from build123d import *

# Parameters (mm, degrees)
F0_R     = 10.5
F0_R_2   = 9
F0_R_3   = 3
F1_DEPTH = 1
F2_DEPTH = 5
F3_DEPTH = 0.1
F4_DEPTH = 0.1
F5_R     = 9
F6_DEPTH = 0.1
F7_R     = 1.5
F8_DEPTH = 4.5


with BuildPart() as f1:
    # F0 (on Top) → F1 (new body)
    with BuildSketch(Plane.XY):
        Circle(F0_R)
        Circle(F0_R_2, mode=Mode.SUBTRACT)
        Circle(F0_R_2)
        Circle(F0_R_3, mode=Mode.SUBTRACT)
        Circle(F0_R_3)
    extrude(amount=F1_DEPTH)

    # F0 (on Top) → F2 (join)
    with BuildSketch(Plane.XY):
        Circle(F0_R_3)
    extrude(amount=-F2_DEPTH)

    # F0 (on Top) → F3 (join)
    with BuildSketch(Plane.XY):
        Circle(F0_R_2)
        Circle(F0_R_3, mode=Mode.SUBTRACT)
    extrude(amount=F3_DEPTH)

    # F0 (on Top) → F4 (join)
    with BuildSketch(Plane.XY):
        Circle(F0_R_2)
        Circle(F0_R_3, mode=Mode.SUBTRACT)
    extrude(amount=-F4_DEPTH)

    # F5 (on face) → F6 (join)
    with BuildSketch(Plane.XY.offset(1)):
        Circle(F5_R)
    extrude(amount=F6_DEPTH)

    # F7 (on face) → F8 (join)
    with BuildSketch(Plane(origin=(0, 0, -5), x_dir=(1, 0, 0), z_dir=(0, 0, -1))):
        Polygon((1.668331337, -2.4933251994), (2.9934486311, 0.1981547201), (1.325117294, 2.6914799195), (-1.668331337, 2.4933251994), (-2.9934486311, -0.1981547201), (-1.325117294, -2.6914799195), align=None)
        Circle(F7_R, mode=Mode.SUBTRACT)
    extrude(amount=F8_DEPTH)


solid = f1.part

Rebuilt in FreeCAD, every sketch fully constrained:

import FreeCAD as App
import Part
import Sketcher

V = App.Vector

doc = App.newDocument("Part")
params = doc.addObject("Spreadsheet::Sheet", "Params")
for row, (alias, value) in enumerate([
    ("sketch1_diameter", "21 mm"),
    ("pad1_length", "1 mm"),
    ("sketch2_diameter", "6 mm"),
    ("pad2_length", "5 mm"),
    ("sketch3_diameter", "18 mm"),
    ("sketch3_diameter2", "6 mm"),
    ("pad3_length", "0.1 mm"),
    ("sketch4_diameter", "18 mm"),
    ("sketch4_diameter2", "6 mm"),
    ("pad4_length", "0.1 mm"),
    ("sketch5_diameter", "18 mm"),
    ("pad5_length", "0.1 mm"),
    ("sketch6_diameter", "3 mm"),
    ("sketch6_length", "3 mm"),
    ("pad6_length", "4.5 mm"),
], start=1):
    params.set(f"A{row}", alias)
    params.set(f"B{row}", "=" + value)
    params.setAlias(f"B{row}", alias)

body = doc.addObject("PartDesign::Body", "Body")

# Sketch on XY plane
sketch1 = body.newObject("Sketcher::SketchObject", "Sketch")
sketch1.AttachmentSupport = (doc.getObject("XY_Plane"), [""])
sketch1.MapMode = "FlatFace"
sketch1.addGeometry(Part.Circle(V(0, 0, 0), V(0, 0, 1), 10), False)
sketch1.addConstraint([
    Sketcher.Constraint("Coincident", 0, 3, -1, 1),
    Sketcher.Constraint("Diameter", 0, 21.0),
])
sketch1.setExpression("Constraints[1]", "Params.sketch1_diameter")
pad1 = body.newObject("PartDesign::Pad", "Pad")
pad1.Profile = sketch1
pad1.setExpression("Length", "Params.pad1_length")

# Sketch on XY plane
sketch2 = body.newObject("Sketcher::SketchObject", "Sketch001")
sketch2.AttachmentSupport = (doc.getObject("XY_Plane"), [""])
sketch2.MapMode = "FlatFace"
sketch2.addGeometry(Part.Circle(V(0, 0, 0), V(0, 0, 1), 3), False)
sketch2.addConstraint([
    Sketcher.Constraint("Coincident", 0, 3, -1, 1),
    Sketcher.Constraint("Diameter", 0, 6.0),
])
sketch2.setExpression("Constraints[1]", "Params.sketch2_diameter")
pad2 = body.newObject("PartDesign::Pad", "Pad001")
pad2.Profile = sketch2
pad2.setExpression("Length", "Params.pad2_length")
pad2.Reversed = True

# Sketch on XY plane
sketch3 = body.newObject("Sketcher::SketchObject", "Sketch002")
sketch3.AttachmentSupport = (doc.getObject("XY_Plane"), [""])
sketch3.MapMode = "FlatFace"
sketch3.addGeometry([
    Part.Circle(V(0, 0, 0), V(0, 0, 1), 9),
    Part.Circle(V(0, 0, 0), V(0, 0, 1), 3),
], False)
sketch3.addConstraint([
    Sketcher.Constraint("Coincident", 0, 3, -1, 1),
    Sketcher.Constraint("Coincident", 1, 3, -1, 1),
    Sketcher.Constraint("Diameter", 0, 18.0),
    Sketcher.Constraint("Diameter", 1, 6.0),
])
sketch3.setExpression("Constraints[2]", "Params.sketch3_diameter")
sketch3.setExpression("Constraints[3]", "Params.sketch3_diameter2")
pad3 = body.newObject("PartDesign::Pad", "Pad002")
pad3.Profile = sketch3
pad3.setExpression("Length", "Params.pad3_length")

# Sketch on XY plane
sketch4 = body.newObject("Sketcher::SketchObject", "Sketch003")
sketch4.AttachmentSupport = (doc.getObject("XY_Plane"), [""])
sketch4.MapMode = "FlatFace"
sketch4.addGeometry([
    Part.Circle(V(0, 0, 0), V(0, 0, 1), 9),
    Part.Circle(V(0, 0, 0), V(0, 0, 1), 3),
], False)
sketch4.addConstraint([
    Sketcher.Constraint("Coincident", 0, 3, -1, 1),
    Sketcher.Constraint("Coincident", 1, 3, -1, 1),
    Sketcher.Constraint("Diameter", 0, 18.0),
    Sketcher.Constraint("Diameter", 1, 6.0),
])
sketch4.setExpression("Constraints[2]", "Params.sketch4_diameter")
sketch4.setExpression("Constraints[3]", "Params.sketch4_diameter2")
pad4 = body.newObject("PartDesign::Pad", "Pad003")
pad4.Profile = sketch4
pad4.setExpression("Length", "Params.pad4_length")
pad4.Reversed = True

# Sketch on XY plane
sketch5 = body.newObject("Sketcher::SketchObject", "Sketch004")
sketch5.AttachmentSupport = (doc.getObject("XY_Plane"), [""])
sketch5.MapMode = "FlatFace"
sketch5.AttachmentOffset = App.Placement(V(0, 0, 1), App.Rotation())
sketch5.addGeometry(Part.Circle(V(0, 0, 0), V(0, 0, 1), 9), False)
sketch5.addConstraint([
    Sketcher.Constraint("Coincident", 0, 3, -1, 1),
    Sketcher.Constraint("Diameter", 0, 18.0),
])
sketch5.setExpression("Constraints[1]", "Params.sketch5_diameter")
pad5 = body.newObject("PartDesign::Pad", "Pad004")
pad5.Profile = sketch5
pad5.setExpression("Length", "Params.pad5_length")

# Sketch on XY plane
sketch6 = body.newObject("Sketcher::SketchObject", "Sketch005")
sketch6.AttachmentSupport = (doc.getObject("XY_Plane"), [""])
sketch6.MapMode = "FlatFace"
sketch6.AttachmentOffset = App.Placement(V(0, 0, -5), App.Rotation())
sketch6.addGeometry([
    Part.LineSegment(V(1.7, 2.5, 0), V(3, -0.2, 0)),  # 0
    Part.LineSegment(V(3, -0.2, 0), V(1.3, -2.7, 0)),  # 1
    Part.LineSegment(V(1.3, -2.7, 0), V(-1.7, -2.5, 0)),  # 2
    Part.LineSegment(V(-1.7, -2.5, 0), V(-3, 0.2, 0)),  # 3
    Part.LineSegment(V(-3, 0.2, 0), V(-1.3, 2.7, 0)),  # 4
    Part.LineSegment(V(-1.3, 2.7, 0), V(1.7, 2.5, 0)),  # 5
    Part.Circle(V(0, 0, 0), V(0, 0, 1), 1.5),  # 6
], False)
sketch6.addConstraint([
    Sketcher.Constraint("Coincident", 0, 2, 1, 1),
    Sketcher.Constraint("Coincident", 1, 2, 2, 1),
    Sketcher.Constraint("Coincident", 2, 2, 3, 1),
    Sketcher.Constraint("Coincident", 3, 2, 4, 1),
    Sketcher.Constraint("Coincident", 4, 2, 5, 1),
    Sketcher.Constraint("Coincident", 5, 2, 0, 1),
    Sketcher.Constraint("Coincident", 6, 3, -1, 1),
    Sketcher.Constraint("Symmetric", 0, 2, 3, 2, -1, 1),
    Sketcher.Constraint("Symmetric", 1, 2, 4, 2, -1, 1),
    Sketcher.Constraint("Symmetric", 2, 2, 5, 2, -1, 1),
    Sketcher.Constraint("Equal", 0, 1),
    Sketcher.Constraint("Equal", 1, 2),
    Sketcher.Constraint("Diameter", 6, 3.0),
    Sketcher.Constraint("Distance", 0, 3.0),
    Sketcher.Constraint("DistanceX", -1, 1, 0, 2, 2.993449),
    Sketcher.Constraint("DistanceY", 1, 2, -1, 1, 2.69148),
    Sketcher.Constraint("DistanceX", 2, 2, -1, 1, 1.668331),
])
sketch6.setExpression("Constraints[12]", "Params.sketch6_diameter")
sketch6.setExpression("Constraints[13]", "Params.sketch6_length")
pad6 = body.newObject("PartDesign::Pad", "Pad005")
pad6.Profile = sketch6
pad6.setExpression("Length", "Params.pad6_length")
pad6.Reversed = True

doc.recompute()
